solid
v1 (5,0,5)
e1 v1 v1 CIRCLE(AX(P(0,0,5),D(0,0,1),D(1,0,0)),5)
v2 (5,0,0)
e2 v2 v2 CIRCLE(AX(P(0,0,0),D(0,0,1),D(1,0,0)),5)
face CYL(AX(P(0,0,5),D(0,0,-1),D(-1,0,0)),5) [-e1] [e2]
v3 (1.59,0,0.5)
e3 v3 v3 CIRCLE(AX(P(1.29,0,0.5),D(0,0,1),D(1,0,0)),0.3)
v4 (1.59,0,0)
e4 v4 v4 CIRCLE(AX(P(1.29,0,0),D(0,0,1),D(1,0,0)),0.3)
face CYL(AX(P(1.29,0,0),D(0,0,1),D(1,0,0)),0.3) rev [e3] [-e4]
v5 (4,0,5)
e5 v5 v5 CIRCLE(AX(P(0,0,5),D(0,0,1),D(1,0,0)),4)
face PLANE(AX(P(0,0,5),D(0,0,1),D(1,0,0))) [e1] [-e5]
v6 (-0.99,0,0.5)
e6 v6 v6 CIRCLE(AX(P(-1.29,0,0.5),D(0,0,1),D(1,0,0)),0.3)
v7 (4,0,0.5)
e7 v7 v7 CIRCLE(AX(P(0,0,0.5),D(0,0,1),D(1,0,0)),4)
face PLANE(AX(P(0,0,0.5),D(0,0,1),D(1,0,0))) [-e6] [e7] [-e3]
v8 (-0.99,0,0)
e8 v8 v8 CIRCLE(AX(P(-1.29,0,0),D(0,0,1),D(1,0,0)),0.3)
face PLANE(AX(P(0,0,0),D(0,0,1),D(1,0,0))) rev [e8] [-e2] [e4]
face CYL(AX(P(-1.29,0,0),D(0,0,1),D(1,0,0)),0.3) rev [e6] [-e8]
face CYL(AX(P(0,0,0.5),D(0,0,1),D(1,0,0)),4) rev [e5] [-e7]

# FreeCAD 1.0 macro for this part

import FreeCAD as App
import Part
import Sketcher

V = App.Vector

doc = App.newDocument("Part")
body = doc.addObject("PartDesign::Body", "Body")

# Sketch on XY plane
sketch1 = body.newObject("Sketcher::SketchObject", "Sketch")
sketch1.AttachmentSupport = (doc.getObject("XY_Plane"), [""])
sketch1.MapMode = "FlatFace"
sketch1.addGeometry(Part.Circle(V(0, 0, 0), V(0, 0, 1), 5), False)
sketch1.addConstraint(Sketcher.Constraint("Coincident", 0, 3, -1, 1))
sketch1.addConstraint(Sketcher.Constraint("Diameter", 0, 10.0))
pad1 = body.newObject("PartDesign::Pad", "Pad")
pad1.Profile = sketch1
pad1.Length = 5

# Sketch on XY plane
sketch2 = body.newObject("Sketcher::SketchObject", "Sketch001")
sketch2.AttachmentSupport = (doc.getObject("XY_Plane"), [""])
sketch2.MapMode = "FlatFace"
sketch2.AttachmentOffset = App.Placement(V(0, 0, 5), App.Rotation())
sketch2.addGeometry(Part.Circle(V(0, 0, 0), V(0, 0, 1), 4), False)
sketch2.addConstraint(Sketcher.Constraint("Coincident", 0, 3, -1, 1))
sketch2.addConstraint(Sketcher.Constraint("Diameter", 0, 8.0))
pocket1 = body.newObject("PartDesign::Pocket", "Pocket")
pocket1.Profile = sketch2
pocket1.Length = 4.5

# Sketch on XY plane
sketch3 = body.newObject("Sketcher::SketchObject", "Sketch002")
sketch3.AttachmentSupport = (doc.getObject("XY_Plane"), [""])
sketch3.MapMode = "FlatFace"
sketch3.AttachmentOffset = App.Placement(V(0, 0, 0.5), App.Rotation())
sketch3.addGeometry(Part.Circle(V(1.29, 0, 0), V(0, 0, 1), 0.3), False)
sketch3.addGeometry(Part.Circle(V(-1.29, 0, 0), V(0, 0, 1), 0.3), False)
sketch3.addConstraint(Sketcher.Constraint("Equal", 0, 1))
sketch3.addConstraint(Sketcher.Constraint("Symmetric", 0, 3, 1, 3, -1, 1))
sketch3.addConstraint(Sketcher.Constraint("PointOnObject", 0, 3, -1))
sketch3.addConstraint(Sketcher.Constraint("Diameter", 0, 0.6))
sketch3.addConstraint(Sketcher.Constraint("DistanceX", -1, 1, 0, 3, 1.29))
pocket2 = body.newObject("PartDesign::Pocket", "Pocket001")
pocket2.Profile = sketch3
pocket2.Type = "ThroughAll"

doc.recompute()
